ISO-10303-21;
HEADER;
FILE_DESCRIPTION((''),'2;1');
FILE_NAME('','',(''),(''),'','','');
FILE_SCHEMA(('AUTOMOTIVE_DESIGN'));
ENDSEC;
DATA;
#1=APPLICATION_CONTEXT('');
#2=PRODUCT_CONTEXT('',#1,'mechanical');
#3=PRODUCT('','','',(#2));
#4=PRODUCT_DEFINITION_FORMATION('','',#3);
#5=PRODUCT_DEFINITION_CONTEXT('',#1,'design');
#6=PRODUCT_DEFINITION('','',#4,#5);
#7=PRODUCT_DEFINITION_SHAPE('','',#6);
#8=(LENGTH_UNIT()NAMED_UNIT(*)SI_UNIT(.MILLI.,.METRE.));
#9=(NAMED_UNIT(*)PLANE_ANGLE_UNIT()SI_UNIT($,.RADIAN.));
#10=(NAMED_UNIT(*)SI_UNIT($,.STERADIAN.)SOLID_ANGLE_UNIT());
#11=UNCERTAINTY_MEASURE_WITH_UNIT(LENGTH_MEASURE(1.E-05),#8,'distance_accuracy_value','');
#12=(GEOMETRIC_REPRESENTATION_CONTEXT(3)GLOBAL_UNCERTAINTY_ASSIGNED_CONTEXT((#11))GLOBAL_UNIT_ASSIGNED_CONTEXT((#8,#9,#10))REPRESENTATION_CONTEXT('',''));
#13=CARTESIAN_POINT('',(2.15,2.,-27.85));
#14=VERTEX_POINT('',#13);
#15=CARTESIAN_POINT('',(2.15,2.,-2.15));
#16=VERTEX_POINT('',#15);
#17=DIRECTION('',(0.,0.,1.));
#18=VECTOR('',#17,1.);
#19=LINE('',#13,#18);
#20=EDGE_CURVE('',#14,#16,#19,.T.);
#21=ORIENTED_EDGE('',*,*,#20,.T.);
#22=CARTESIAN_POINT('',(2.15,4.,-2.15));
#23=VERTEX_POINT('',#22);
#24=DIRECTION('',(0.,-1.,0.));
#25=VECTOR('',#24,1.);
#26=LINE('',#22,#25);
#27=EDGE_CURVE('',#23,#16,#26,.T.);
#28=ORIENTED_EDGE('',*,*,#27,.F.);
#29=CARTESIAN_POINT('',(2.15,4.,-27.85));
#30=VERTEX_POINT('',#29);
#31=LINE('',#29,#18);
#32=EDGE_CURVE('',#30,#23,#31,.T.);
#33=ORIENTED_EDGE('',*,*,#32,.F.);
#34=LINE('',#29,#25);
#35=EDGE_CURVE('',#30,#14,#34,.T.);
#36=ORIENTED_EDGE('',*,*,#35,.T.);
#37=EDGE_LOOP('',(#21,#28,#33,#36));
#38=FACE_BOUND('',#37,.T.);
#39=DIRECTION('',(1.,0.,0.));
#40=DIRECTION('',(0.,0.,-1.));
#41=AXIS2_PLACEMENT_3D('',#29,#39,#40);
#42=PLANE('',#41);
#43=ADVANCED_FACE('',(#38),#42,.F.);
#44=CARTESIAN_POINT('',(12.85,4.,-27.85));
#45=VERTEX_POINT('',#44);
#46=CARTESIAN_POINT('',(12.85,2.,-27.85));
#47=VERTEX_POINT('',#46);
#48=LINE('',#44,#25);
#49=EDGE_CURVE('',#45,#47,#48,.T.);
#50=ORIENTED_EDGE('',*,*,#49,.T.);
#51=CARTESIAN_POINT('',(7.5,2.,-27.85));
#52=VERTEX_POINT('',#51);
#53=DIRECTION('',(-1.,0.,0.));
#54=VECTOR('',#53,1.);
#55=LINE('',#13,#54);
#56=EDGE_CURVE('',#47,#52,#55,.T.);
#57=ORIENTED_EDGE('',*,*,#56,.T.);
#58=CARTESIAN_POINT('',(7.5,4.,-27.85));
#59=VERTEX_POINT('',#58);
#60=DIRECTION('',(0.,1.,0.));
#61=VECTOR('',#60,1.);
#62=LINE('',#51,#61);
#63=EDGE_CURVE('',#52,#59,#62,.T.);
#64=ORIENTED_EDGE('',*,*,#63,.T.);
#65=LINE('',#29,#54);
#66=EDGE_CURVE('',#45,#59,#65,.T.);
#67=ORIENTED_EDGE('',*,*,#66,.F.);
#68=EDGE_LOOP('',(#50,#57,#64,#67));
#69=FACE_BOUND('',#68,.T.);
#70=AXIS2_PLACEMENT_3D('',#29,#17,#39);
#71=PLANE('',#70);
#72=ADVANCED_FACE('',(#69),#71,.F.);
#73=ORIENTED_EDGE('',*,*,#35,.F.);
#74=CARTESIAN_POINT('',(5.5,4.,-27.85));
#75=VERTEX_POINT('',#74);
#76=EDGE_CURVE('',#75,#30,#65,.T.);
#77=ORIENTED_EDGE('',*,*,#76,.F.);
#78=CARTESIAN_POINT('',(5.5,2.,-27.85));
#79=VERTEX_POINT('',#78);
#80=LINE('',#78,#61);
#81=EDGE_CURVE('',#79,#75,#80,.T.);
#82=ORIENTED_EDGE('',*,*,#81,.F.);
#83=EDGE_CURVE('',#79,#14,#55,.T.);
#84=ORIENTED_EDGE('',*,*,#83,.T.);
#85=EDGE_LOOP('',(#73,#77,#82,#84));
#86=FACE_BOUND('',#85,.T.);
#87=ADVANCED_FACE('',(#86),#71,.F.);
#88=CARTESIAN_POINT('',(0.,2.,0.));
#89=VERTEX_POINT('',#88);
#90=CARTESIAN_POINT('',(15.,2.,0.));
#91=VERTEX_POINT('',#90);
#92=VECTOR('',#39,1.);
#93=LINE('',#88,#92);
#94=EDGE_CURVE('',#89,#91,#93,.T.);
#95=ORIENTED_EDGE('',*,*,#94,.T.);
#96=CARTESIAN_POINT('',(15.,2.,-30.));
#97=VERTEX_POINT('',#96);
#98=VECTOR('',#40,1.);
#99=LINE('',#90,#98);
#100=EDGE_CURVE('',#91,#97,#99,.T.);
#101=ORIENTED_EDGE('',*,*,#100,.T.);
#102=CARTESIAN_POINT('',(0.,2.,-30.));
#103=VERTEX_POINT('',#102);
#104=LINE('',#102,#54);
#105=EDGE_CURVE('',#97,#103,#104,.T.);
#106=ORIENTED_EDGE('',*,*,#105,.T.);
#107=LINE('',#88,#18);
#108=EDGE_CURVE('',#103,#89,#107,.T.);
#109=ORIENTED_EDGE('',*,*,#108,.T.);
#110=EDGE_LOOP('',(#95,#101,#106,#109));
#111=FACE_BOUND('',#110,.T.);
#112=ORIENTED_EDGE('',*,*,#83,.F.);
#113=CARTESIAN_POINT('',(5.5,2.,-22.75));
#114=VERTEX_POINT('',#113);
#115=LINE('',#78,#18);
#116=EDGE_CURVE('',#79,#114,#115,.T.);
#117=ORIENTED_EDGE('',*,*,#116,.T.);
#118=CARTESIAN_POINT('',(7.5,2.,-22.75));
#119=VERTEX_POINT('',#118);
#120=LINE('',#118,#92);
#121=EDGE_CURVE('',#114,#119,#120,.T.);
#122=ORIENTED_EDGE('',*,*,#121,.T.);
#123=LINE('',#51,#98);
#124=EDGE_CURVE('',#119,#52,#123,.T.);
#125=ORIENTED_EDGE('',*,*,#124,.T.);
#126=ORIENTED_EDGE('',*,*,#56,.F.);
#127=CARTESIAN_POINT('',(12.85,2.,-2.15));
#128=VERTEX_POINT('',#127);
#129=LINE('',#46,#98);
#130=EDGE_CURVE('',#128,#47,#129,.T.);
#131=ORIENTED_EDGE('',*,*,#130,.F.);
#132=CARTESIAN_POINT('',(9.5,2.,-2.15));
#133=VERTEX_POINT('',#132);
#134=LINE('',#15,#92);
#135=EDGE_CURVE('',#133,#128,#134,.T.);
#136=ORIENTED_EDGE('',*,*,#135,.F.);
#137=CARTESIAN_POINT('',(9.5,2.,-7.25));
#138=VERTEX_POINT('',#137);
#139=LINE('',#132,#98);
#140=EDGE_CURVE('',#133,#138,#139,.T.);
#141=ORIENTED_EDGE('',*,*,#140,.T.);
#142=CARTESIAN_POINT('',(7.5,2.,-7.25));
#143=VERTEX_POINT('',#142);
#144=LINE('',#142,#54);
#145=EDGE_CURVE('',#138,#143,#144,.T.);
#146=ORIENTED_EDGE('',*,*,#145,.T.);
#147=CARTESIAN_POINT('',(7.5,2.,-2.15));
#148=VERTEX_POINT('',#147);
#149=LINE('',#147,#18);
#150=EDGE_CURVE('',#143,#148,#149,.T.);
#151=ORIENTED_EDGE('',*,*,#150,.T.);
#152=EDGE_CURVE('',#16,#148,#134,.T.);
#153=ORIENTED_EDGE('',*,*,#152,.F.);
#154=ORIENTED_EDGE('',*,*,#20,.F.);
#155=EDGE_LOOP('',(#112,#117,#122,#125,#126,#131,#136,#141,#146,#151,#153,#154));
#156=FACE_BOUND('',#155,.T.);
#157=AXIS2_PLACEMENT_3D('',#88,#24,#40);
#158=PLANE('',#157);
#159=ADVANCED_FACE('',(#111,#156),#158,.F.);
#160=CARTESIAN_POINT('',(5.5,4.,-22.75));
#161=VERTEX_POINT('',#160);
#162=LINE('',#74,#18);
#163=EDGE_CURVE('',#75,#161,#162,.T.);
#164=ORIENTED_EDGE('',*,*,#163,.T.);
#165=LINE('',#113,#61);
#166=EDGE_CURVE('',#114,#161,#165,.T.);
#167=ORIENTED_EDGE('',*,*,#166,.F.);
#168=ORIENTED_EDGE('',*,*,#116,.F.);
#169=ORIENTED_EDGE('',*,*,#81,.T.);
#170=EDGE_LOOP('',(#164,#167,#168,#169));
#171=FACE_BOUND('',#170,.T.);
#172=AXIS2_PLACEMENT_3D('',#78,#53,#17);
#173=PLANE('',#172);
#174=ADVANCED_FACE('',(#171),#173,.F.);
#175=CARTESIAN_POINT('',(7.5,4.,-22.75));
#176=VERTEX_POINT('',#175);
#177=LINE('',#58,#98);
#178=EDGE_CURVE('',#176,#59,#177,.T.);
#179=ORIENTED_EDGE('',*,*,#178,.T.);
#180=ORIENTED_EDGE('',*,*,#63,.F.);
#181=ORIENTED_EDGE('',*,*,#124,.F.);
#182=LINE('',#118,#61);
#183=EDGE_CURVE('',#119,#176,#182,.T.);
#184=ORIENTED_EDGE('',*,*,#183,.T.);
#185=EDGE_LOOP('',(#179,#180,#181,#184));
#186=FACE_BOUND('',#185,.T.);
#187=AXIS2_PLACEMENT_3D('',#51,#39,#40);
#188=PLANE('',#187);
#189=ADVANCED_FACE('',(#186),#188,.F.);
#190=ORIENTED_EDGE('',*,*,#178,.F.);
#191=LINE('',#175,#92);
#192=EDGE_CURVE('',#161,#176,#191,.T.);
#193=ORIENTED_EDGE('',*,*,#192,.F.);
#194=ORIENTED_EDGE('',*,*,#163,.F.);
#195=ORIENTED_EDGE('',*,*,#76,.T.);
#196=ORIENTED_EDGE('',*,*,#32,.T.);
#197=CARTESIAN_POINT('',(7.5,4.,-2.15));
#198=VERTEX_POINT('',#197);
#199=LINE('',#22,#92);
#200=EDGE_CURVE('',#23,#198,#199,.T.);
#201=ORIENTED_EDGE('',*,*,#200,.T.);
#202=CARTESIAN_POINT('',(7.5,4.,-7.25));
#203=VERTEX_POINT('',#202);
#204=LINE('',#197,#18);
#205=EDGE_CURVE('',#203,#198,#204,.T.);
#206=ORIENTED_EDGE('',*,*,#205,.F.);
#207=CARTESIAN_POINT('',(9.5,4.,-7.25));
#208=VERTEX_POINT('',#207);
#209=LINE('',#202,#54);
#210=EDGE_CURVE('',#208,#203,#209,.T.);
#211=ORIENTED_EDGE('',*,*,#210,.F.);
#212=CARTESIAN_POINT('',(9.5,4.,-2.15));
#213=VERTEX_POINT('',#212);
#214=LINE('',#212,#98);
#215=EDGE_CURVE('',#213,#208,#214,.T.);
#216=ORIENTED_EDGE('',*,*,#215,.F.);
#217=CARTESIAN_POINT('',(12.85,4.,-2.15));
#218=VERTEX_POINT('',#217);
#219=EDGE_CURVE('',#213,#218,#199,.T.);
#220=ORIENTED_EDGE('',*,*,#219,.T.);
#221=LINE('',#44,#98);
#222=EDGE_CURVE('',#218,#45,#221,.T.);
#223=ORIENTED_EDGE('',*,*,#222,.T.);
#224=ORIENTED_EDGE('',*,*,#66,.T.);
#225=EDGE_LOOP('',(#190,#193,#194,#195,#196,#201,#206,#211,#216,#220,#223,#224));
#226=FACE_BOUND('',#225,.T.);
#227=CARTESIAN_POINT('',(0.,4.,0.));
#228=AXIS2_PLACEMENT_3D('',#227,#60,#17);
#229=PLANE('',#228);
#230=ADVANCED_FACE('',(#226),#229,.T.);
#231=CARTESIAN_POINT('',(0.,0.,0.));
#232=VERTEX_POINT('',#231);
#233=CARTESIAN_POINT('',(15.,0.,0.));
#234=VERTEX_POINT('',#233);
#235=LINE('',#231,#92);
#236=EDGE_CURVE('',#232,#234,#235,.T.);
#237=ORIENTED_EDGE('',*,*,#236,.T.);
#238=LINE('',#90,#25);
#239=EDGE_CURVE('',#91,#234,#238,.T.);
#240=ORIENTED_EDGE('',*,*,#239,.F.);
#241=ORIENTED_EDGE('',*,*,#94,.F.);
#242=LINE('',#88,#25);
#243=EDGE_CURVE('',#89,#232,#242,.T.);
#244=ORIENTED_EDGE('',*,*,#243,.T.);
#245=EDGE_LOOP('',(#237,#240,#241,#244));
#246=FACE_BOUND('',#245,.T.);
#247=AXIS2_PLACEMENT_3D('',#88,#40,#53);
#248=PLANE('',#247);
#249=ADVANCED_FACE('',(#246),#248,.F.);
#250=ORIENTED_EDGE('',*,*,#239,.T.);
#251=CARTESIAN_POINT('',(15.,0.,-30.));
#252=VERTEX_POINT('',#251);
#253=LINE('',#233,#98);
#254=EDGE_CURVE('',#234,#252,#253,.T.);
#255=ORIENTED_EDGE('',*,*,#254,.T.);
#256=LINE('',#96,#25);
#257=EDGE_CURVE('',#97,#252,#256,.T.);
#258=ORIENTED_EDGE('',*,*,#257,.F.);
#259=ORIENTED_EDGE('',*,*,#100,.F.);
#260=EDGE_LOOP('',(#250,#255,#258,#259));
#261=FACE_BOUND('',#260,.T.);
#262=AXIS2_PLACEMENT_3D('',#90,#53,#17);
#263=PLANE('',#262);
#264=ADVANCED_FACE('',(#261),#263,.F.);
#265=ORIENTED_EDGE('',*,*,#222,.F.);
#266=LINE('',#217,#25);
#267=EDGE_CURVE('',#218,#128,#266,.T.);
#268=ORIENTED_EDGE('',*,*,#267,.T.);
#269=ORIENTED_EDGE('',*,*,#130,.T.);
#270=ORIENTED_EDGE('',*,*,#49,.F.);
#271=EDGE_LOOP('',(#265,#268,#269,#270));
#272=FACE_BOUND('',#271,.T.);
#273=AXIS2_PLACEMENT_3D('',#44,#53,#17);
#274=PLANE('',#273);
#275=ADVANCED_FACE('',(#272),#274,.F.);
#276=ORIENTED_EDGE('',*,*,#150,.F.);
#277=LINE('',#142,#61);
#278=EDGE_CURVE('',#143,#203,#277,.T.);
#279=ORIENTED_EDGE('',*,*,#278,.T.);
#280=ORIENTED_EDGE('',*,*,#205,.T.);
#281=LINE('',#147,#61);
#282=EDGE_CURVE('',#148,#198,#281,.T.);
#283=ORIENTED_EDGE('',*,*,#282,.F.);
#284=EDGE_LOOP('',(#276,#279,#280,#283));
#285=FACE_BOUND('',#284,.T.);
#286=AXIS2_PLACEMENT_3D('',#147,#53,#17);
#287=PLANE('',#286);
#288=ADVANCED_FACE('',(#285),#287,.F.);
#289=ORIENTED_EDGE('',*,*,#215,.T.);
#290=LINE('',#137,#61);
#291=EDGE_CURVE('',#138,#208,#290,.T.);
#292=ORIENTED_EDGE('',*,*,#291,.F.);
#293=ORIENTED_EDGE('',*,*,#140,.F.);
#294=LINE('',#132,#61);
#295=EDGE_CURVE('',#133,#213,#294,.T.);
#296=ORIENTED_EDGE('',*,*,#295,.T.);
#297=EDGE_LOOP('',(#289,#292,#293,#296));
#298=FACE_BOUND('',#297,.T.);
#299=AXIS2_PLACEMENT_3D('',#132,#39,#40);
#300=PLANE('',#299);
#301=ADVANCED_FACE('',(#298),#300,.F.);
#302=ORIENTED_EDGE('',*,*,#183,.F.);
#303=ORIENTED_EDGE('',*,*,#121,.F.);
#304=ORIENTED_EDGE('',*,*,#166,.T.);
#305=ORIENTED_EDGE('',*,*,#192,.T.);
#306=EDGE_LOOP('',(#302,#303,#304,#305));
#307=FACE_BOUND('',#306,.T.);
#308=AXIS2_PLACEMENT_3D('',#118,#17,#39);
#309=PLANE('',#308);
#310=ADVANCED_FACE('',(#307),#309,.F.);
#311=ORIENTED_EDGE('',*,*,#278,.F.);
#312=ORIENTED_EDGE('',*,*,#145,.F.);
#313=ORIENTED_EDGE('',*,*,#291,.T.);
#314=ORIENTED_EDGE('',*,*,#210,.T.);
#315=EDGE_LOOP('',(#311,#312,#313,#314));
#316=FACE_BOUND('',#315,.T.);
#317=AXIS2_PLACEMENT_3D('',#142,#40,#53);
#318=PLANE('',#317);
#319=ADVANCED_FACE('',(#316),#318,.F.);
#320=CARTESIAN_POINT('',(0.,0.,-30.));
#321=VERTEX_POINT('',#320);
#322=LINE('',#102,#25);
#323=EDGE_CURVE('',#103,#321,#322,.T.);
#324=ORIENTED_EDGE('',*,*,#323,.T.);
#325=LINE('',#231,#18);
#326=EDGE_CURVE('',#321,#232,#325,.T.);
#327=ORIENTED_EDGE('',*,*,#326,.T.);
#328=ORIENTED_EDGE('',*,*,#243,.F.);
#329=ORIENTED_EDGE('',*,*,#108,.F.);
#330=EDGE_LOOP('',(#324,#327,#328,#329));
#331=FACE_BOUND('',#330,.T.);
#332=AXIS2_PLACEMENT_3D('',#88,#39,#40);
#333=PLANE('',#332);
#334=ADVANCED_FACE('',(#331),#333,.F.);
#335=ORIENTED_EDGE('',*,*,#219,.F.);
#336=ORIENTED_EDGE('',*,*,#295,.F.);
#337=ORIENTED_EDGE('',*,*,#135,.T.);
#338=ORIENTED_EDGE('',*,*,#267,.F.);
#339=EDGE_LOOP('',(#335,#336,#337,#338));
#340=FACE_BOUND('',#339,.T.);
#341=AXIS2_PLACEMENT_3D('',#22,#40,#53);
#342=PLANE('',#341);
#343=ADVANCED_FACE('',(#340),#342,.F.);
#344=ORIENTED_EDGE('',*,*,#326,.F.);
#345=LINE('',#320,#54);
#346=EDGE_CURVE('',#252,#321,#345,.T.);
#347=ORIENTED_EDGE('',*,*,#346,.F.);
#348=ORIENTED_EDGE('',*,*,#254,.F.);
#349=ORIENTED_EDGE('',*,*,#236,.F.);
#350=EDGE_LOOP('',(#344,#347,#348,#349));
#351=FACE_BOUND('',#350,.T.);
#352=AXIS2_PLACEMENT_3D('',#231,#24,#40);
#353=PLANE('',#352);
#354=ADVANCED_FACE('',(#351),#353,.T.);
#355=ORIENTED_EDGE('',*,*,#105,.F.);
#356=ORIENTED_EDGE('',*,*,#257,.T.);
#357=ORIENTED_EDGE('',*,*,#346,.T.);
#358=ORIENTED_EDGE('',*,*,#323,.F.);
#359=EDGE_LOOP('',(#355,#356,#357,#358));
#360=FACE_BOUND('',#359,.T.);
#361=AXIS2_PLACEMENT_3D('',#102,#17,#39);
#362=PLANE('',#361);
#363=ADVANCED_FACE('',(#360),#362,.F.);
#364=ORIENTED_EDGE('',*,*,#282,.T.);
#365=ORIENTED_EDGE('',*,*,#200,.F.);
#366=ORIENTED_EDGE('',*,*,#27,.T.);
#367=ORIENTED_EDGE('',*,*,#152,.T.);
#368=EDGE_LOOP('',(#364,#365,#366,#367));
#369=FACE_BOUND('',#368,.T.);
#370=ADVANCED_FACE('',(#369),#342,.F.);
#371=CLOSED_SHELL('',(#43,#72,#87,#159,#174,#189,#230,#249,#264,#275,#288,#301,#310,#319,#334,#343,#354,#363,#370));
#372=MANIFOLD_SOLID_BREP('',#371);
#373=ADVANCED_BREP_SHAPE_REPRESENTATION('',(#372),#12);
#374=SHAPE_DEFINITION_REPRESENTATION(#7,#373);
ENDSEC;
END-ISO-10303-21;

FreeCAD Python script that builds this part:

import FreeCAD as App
import Part
import Sketcher
from FreeCAD import Vector
Q = App.Units.Quantity

doc = App.newDocument("Part")
body = doc.addObject("PartDesign::Body", "Body")

# Sketch on XZ plane
sketch1 = body.newObject("Sketcher::SketchObject", "Sketch")
sketch1.AttachmentSupport = (doc.getObject("XZ_Plane"), [""])
sketch1.MapMode = "FlatFace"
sketch1.addGeometry([
    Part.LineSegment(Vector(0, -30, 0), Vector(0, 0, 0)),
    Part.LineSegment(Vector(0, 0, 0), Vector(15, 0, 0)),
    Part.LineSegment(Vector(15, 0, 0), Vector(15, -30, 0)),
    Part.LineSegment(Vector(15, -30, 0), Vector(0, -30, 0)),
], False)
sketch1.addConstraint([
    Sketcher.Constraint("Coincident", 0, 2, 1, 1),
    Sketcher.Constraint("Coincident", 1, 2, 2, 1),
    Sketcher.Constraint("Coincident", 2, 2, 3, 1),
    Sketcher.Constraint("Coincident", 3, 2, 0, 1),
    Sketcher.Constraint("Vertical", 0),
    Sketcher.Constraint("Horizontal", 1),
    Sketcher.Constraint("Vertical", 2),
    Sketcher.Constraint("Horizontal", 3),
    Sketcher.Constraint("Coincident", 0, 2, -1, 1),
    Sketcher.Constraint("DistanceX", 1, 1, 1, 2, Q("15 mm")),
    Sketcher.Constraint("DistanceY", 0, 1, 0, 2, Q("30 mm")),
])
pad1 = body.newObject("PartDesign::Pad", "Pad")
pad1.Profile = sketch1
pad1.Length = 2
pad1.Reversed = True

# Sketch on XZ plane
sketch2 = body.newObject("Sketcher::SketchObject", "Sketch001")
sketch2.AttachmentSupport = (doc.getObject("XZ_Plane"), [""])
sketch2.MapMode = "FlatFace"
sketch2.AttachmentOffset = App.Placement(Vector(0, 0, -2), App.Rotation())
sketch2.addGeometry([
    Part.LineSegment(Vector(2, -28, 0), Vector(2, -2, 0)),
    Part.LineSegment(Vector(2, -2, 0), Vector(13, -2, 0)),
    Part.LineSegment(Vector(13, -2, 0), Vector(13, -28, 0)),
    Part.LineSegment(Vector(13, -28, 0), Vector(2, -28, 0)),
], False)
sketch2.addConstraint([
    Sketcher.Constraint("Coincident", 0, 2, 1, 1),
    Sketcher.Constraint("Coincident", 1, 2, 2, 1),
    Sketcher.Constraint("Coincident", 2, 2, 3, 1),
    Sketcher.Constraint("Coincident", 3, 2, 0, 1),
    Sketcher.Constraint("Vertical", 0),
    Sketcher.Constraint("Horizontal", 1),
    Sketcher.Constraint("Vertical", 2),
    Sketcher.Constraint("Horizontal", 3),
    Sketcher.Constraint("DistanceX", 1, 1, 1, 2, Q("10.7 mm")),
    Sketcher.Constraint("DistanceY", 0, 1, 0, 2, Q("25.7 mm")),
    Sketcher.Constraint("DistanceX", -1, 1, 0, 2, Q("2.15 mm")),
    Sketcher.Constraint("DistanceY", 0, 2, -1, 1, Q("2.15 mm")),
])
pad2 = body.newObject("PartDesign::Pad", "Pad001")
pad2.Profile = sketch2
pad2.Length = 2
pad2.Reversed = True

# Sketch on XZ plane
sketch3 = body.newObject("Sketcher::SketchObject", "Sketch002")
sketch3.AttachmentSupport = (doc.getObject("XZ_Plane"), [""])
sketch3.MapMode = "FlatFace"
sketch3.AttachmentOffset = App.Placement(Vector(0, 0, -4), App.Rotation())
sketch3.addGeometry([
    Part.LineSegment(Vector(5.5, -27.9, 0), Vector(5.5, -22.8, 0)),  # 0
    Part.LineSegment(Vector(5.5, -22.8, 0), Vector(7.5, -22.8, 0)),  # 1
    Part.LineSegment(Vector(7.5, -22.8, 0), Vector(7.5, -27.9, 0)),  # 2
    Part.LineSegment(Vector(7.5, -27.9, 0), Vector(5.5, -27.9, 0)),  # 3
    Part.LineSegment(Vector(7.5, -7.2, 0), Vector(7.5, -2.1, 0)),  # 4
    Part.LineSegment(Vector(7.5, -2.1, 0), Vector(9.5, -2.1, 0)),  # 5
    Part.LineSegment(Vector(9.5, -2.1, 0), Vector(9.5, -7.2, 0)),  # 6
    Part.LineSegment(Vector(9.5, -7.2, 0), Vector(7.5, -7.2, 0)),  # 7
], False)
sketch3.addConstraint([
    Sketcher.Constraint("Coincident", 0, 2, 1, 1),
    Sketcher.Constraint("Coincident", 1, 2, 2, 1),
    Sketcher.Constraint("Coincident", 2, 2, 3, 1),
    Sketcher.Constraint("Coincident", 3, 2, 0, 1),
    Sketcher.Constraint("Coincident", 4, 2, 5, 1),
    Sketcher.Constraint("Coincident", 5, 2, 6, 1),
    Sketcher.Constraint("Coincident", 6, 2, 7, 1),
    Sketcher.Constraint("Coincident", 7, 2, 4, 1),
    Sketcher.Constraint("Vertical", 0),
    Sketcher.Constraint("Horizontal", 1),
    Sketcher.Constraint("Vertical", 2),
    Sketcher.Constraint("Horizontal", 3),
    Sketcher.Constraint("Vertical", 4),
    Sketcher.Constraint("Horizontal", 5),
    Sketcher.Constraint("Vertical", 6),
    Sketcher.Constraint("Horizontal", 7),
    Sketcher.Constraint("Vertical", 2, 2, 4, 2),
    Sketcher.Constraint("Equal", 3, 5),
    Sketcher.Constraint("Equal", 2, 4),
    Sketcher.Constraint("DistanceX", 1, 1, 1, 2, Q("2 mm")),
    Sketcher.Constraint("DistanceY", 0, 1, 0, 2, Q("5.1 mm")),
    Sketcher.Constraint("DistanceX", -1, 1, 0, 2, Q("5.5 mm")),
    Sketcher.Constraint("DistanceY", 1, 2, 4, 2, Q("20.6 mm")),
    Sketcher.Constraint("DistanceY", 0, 2, -1, 1, Q("22.75 mm")),
])
pocket1 = body.newObject("PartDesign::Pocket", "Pocket")
pocket1.Profile = sketch3
pocket1.Length = 2
pocket1.Reversed = True

doc.recompute()
